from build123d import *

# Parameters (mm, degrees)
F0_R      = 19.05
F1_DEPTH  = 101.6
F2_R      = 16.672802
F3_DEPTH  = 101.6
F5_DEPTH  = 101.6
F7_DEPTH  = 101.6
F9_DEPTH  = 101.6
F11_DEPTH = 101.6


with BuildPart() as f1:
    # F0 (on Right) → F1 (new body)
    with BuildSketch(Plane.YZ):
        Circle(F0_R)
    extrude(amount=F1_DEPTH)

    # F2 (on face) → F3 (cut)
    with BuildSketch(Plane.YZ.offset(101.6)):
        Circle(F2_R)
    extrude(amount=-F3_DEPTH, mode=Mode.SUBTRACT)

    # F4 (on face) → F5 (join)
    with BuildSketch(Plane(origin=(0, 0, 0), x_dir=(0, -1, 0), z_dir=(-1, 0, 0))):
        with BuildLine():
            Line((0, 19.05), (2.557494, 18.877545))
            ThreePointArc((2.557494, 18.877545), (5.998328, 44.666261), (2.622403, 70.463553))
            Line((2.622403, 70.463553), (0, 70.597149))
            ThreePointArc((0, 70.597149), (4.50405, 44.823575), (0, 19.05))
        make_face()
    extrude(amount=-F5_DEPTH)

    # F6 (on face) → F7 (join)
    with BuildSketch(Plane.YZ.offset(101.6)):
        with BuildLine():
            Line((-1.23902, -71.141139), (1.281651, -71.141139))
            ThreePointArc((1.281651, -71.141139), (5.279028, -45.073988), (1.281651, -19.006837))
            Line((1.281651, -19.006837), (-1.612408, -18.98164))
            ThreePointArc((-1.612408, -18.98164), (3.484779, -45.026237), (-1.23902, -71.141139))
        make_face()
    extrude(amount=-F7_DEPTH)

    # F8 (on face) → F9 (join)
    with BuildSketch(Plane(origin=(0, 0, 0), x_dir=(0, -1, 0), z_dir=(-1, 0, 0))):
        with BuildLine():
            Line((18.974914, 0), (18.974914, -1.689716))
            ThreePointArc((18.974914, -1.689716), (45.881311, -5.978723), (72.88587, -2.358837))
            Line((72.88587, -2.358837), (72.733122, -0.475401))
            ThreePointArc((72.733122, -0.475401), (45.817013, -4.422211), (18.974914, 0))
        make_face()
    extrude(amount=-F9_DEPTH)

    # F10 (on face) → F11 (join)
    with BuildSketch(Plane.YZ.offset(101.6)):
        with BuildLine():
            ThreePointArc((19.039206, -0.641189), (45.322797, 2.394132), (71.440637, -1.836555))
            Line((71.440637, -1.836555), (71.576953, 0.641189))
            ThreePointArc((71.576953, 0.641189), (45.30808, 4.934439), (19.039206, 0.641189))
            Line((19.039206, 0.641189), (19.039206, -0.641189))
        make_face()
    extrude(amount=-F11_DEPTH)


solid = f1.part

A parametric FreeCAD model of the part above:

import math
import FreeCAD as App
import Part
import Sketcher
from FreeCAD import Vector
Q = App.Units.Quantity

doc = App.newDocument("Part")
params = doc.addObject("Spreadsheet::Sheet", "Params")
for row, (alias, value) in enumerate([
    ("sketch1_diameter", "1.5 in"),
    ("pad1_length", "4 in"),
    ("pocket1_length", "4 in"),
    ("pad2_length", "4 in"),
    ("pad3_length", "4 in"),
    ("pad4_length", "4 in"),
    ("pad5_length", "4 in"),
], start=1):
    params.set(f"A{row}", alias)
    params.set(f"B{row}", "=" + value)
    params.setAlias(f"B{row}", alias)

body = doc.addObject("PartDesign::Body", "Body")

# Sketch on YZ plane
sketch1 = body.newObject("Sketcher::SketchObject", "Sketch")
sketch1.AttachmentSupport = (doc.getObject("YZ_Plane"), [""])
sketch1.MapMode = "FlatFace"
sketch1.addGeometry(Part.Circle(Vector(0, 0, 0), Vector(0, 0, 1), 19.05), False)
sketch1.addConstraint([
    Sketcher.Constraint("Coincident", 0, 3, -1, 1),
    Sketcher.Constraint("Diameter", 0, Q("1.5 in")),
])
sketch1.setExpression("Constraints[1]", "Params.sketch1_diameter")
pad1 = body.newObject("PartDesign::Pad", "Pad")
pad1.Profile = sketch1
pad1.setExpression("Length", "Params.pad1_length")

# Sketch on YZ plane
sketch2 = body.newObject("Sketcher::SketchObject", "Sketch001")
sketch2.AttachmentSupport = (doc.getObject("YZ_Plane"), [""])
sketch2.MapMode = "FlatFace"
sketch2.AttachmentOffset = App.Placement(Vector(0, 0, 4 * 25.4), App.Rotation())
sketch2.addGeometry(Part.Circle(Vector(0, 0, 0), Vector(0, 0, 1), 16.672802), False)
sketch2.addConstraint([
    Sketcher.Constraint("Coincident", 0, 3, -1, 1),
    Sketcher.Constraint("Diameter", 0, 33.345604),
])
pocket1 = body.newObject("PartDesign::Pocket", "Pocket")
pocket1.Profile = sketch2
pocket1.setExpression("Length", "Params.pocket1_length")

# Sketch on YZ plane
sketch3 = body.newObject("Sketcher::SketchObject", "Sketch002")
sketch3.AttachmentSupport = (doc.getObject("YZ_Plane"), [""])
sketch3.MapMode = "FlatFace"
sketch3.addGeometry([
    Part.LineSegment(Vector(0, 19.05, 0), Vector(-2.557494, 18.877545, 0)),
    Part.ArcOfCircle(Part.Circle(Vector(93.300489, 44.791205, 0), Vector(0, 0, 1), 99.298896), math.radians(165.016783), math.radians(195.127403)),
    Part.LineSegment(Vector(-2.622403, 70.463553, 0), Vector(0, 70.597149, 0)),
    Part.ArcOfCircle(Part.Circle(Vector(71.490178, 44.823574, 0), Vector(0, 0, 1), 75.994228), math.radians(160.174798), math.radians(199.825202)),
], False)
sketch3.addConstraint([
    Sketcher.Constraint("Coincident", 0, 2, 1, 2),
    Sketcher.Constraint("Coincident", 1, 1, 2, 1),
    Sketcher.Constraint("Coincident", 2, 2, 3, 1),
    Sketcher.Constraint("Coincident", 3, 2, 0, 1),
    Sketcher.Constraint("PointOnObject", 2, 2, -2),
    Sketcher.Constraint("PointOnObject", 3, 2, -2),
    Sketcher.Constraint("DistanceY", -1, 1, 3, 2, Q("0.75 in")),
    Sketcher.Constraint("Radius", 3, 75.994228),
    Sketcher.Constraint("Radius", 1, 99.298896),
    Sketcher.Constraint("Distance", 0, 2.563302),
    Sketcher.Constraint("DistanceX", -1, 1, 1, 3, 93.300489),
    Sketcher.Constraint("DistanceX", -1, 1, 3, 3, 71.490178),
    Sketcher.Constraint("DistanceY", 1, 3, 3, 3, 0.03237),
    Sketcher.Constraint("DistanceX", 1, 1, 0, 2, 0.064909),
])
pad2 = body.newObject("PartDesign::Pad", "Pad001")
pad2.Profile = sketch3
pad2.setExpression("Length", "Params.pad2_length")

# Sketch on YZ plane
sketch4 = body.newObject("Sketcher::SketchObject", "Sketch003")
sketch4.AttachmentSupport = (doc.getObject("YZ_Plane"), [""])
sketch4.MapMode = "FlatFace"
sketch4.AttachmentOffset = App.Placement(Vector(0, 0, 4 * 25.4), App.Rotation())
sketch4.addGeometry([
    Part.LineSegment(Vector(-1.23902, -71.141139, 0), Vector(1.281651, -71.141139, 0)),
    Part.ArcOfCircle(Part.Circle(Vector(-81.71244, -45.073988, 0), Vector(0, 0, 1), 86.991468), math.radians(-17.436691), math.radians(17.436691)),
    Part.LineSegment(Vector(1.281651, -19.006837, 0), Vector(-1.612408, -18.98164, 0)),
    Part.ArcOfCircle(Part.Circle(Vector(-68.225564, -45.539582, 0), Vector(0, 0, 1), 71.71218), math.radians(-20.916334), math.radians(21.736633)),
], False)
sketch4.addConstraint([
    Sketcher.Constraint("Coincident", 0, 2, 1, 1),
    Sketcher.Constraint("Coincident", 1, 2, 2, 1),
    Sketcher.Constraint("Coincident", 2, 2, 3, 2),
    Sketcher.Constraint("Coincident", 3, 1, 0, 1),
    Sketcher.Constraint("Horizontal", 0),
    Sketcher.Constraint("Vertical", 0, 2, 1, 2),
    Sketcher.Constraint("Radius", 3, 71.71218),
    Sketcher.Constraint("Radius", 1, 86.991468),
    Sketcher.Constraint("DistanceX", 0, 1, 0, 2, 2.520671),
    Sketcher.Constraint("DistanceY", 0, 2, 1, 2, 52.134302),
    Sketcher.Constraint("DistanceY", 0, 2, 2, 2, 52.159499),
    Sketcher.Constraint("Distance", 2, 2.894169),
    Sketcher.Constraint("DistanceX", 1, 3, -1, 1, 81.71244),
    Sketcher.Constraint("DistanceY", 3, 3, -1, 1, 45.539582),
])
pad3 = body.newObject("PartDesign::Pad", "Pad002")
pad3.Profile = sketch4
pad3.setExpression("Length", "Params.pad3_length")
pad3.Reversed = True

# Sketch on YZ plane
sketch5 = body.newObject("Sketcher::SketchObject", "Sketch004")
sketch5.AttachmentSupport = (doc.getObject("YZ_Plane"), [""])
sketch5.MapMode = "FlatFace"
sketch5.addGeometry([
    Part.LineSegment(Vector(-18.974914, 0, 0), Vector(-18.974914, -1.689716, 0)),
    Part.ArcOfCircle(Part.Circle(Vector(-47.046117, 87.869486, 0), Vector(0, 0, 1), 93.855437), math.radians(-105.980751), math.radians(-72.597058)),
    Part.LineSegment(Vector(-72.88587, -2.358837, 0), Vector(-72.733122, -0.475401, 0)),
    Part.ArcOfCircle(Part.Circle(Vector(-46.598947, 83.998688, 0), Vector(0, 0, 1), 88.424356), math.radians(-107.190762), math.radians(-71.795894)),
], False)
sketch5.addConstraint([
    Sketcher.Constraint("Coincident", 0, 2, 1, 2),
    Sketcher.Constraint("Coincident", 1, 1, 2, 1),
    Sketcher.Constraint("Coincident", 2, 2, 3, 1),
    Sketcher.Constraint("Coincident", 3, 2, 0, 1),
    Sketcher.Constraint("Vertical", 0),
    Sketcher.Constraint("PointOnObject", 3, 2, -1),
    Sketcher.Constraint("Radius", 1, 93.855437),
    Sketcher.Constraint("Radius", 3, 88.424356),
    Sketcher.Constraint("DistanceY", 2, 2, -1, 1, 0.475401),
    Sketcher.Constraint("DistanceY", 0, 2, 1, 3, 89.559202),
    Sketcher.Constraint("Distance", 2, 1.88962),
    Sketcher.Constraint("DistanceY", 0, 2, 0, 1, 1.689716),
    Sketcher.Constraint("DistanceX", 1, 1, -1, 1, 72.88587),
    Sketcher.Constraint("DistanceX", 2, 2, -1, 1, 72.733122),
])
pad4 = body.newObject("PartDesign::Pad", "Pad003")
pad4.Profile = sketch5
pad4.setExpression("Length", "Params.pad4_length")

# Sketch on YZ plane
sketch6 = body.newObject("Sketcher::SketchObject", "Sketch005")
sketch6.AttachmentSupport = (doc.getObject("YZ_Plane"), [""])
sketch6.MapMode = "FlatFace"
sketch6.AttachmentOffset = App.Placement(Vector(0, 0, 4 * 25.4), App.Rotation())
sketch6.addGeometry([
    Part.ArcOfCircle(Part.Circle(Vector(43.126156, -93.900313, 0), Vector(0, 0, 1), 96.319496), math.radians(72.904565), math.radians(104.481859)),
    Part.LineSegment(Vector(71.440637, -1.836555, 0), Vector(71.576953, 0.641189, 0)),
    Part.ArcOfCircle(Part.Circle(Vector(45.308079, -77.577144, 0), Vector(0, 0, 1), 82.511583), math.radians(71.435871), math.radians(108.564129)),
    Part.LineSegment(Vector(19.039206, 0.641189, 0), Vector(19.039206, -0.641189, 0)),
], False)
sketch6.addConstraint([
    Sketcher.Constraint("Coincident", 0, 1, 1, 1),
    Sketcher.Constraint("Coincident", 1, 2, 2, 1),
    Sketcher.Constraint("Coincident", 2, 2, 3, 1),
    Sketcher.Constraint("Coincident", 3, 2, 0, 2),
    Sketcher.Constraint("Vertical", 3),
    Sketcher.Constraint("Horizontal", 1, 2, 2, 2),
    Sketcher.Constraint("Radius", 0, 96.319496),
    Sketcher.Constraint("Radius", 2, 82.511583),
    Sketcher.Constraint("Distance", 1, 2.481491),
    Sketcher.Constraint("DistanceY", 3, 2, 3, 1, 1.282378),
    Sketcher.Constraint("DistanceX", -1, 1, 2, 3, 45.308079),
    Sketcher.Constraint("DistanceY", -1, 1, 1, 2, 0.641189),
    Sketcher.Constraint("DistanceY", 0, 3, 2, 3, 16.323169),
    Sketcher.Constraint("DistanceY", 2, 3, 0, 1, 75.740589),
])
pad5 = body.newObject("PartDesign::Pad", "Pad004")
pad5.Profile = sketch6
pad5.setExpression("Length", "Params.pad5_length")
pad5.Reversed = True

doc.recompute()
